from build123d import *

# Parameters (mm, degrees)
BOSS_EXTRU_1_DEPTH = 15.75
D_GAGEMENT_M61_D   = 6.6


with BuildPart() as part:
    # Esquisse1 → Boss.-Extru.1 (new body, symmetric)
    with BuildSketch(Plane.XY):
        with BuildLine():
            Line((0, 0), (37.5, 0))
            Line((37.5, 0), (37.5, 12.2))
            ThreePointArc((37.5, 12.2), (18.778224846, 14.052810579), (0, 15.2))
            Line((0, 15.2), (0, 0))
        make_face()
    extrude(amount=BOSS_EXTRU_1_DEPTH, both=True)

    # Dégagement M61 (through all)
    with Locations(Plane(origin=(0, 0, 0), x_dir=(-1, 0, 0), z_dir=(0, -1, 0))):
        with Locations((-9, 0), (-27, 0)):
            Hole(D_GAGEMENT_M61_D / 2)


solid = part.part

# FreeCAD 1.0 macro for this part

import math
import FreeCAD as App
import Part
import Sketcher

V = App.Vector
Q = App.Units.Quantity

doc = App.newDocument("Part")
body = doc.addObject("PartDesign::Body", "Body")

sketch1 = body.newObject("Sketcher::SketchObject", "Sketch")
sketch1.AttachmentSupport = (doc.getObject("XY_Plane"), [""])
sketch1.MapMode = "FlatFace"
sketch1.addGeometry([
    Part.LineSegment(V(0, 0, 0), V(37.5, 0, 0)),
    Part.LineSegment(V(37.5, 0, 0), V(37.5, 12.2, 0)),
    Part.ArcOfCircle(Part.Circle(V(-21.094386, -484.354828, 0), V(0, 0, 1), 500), math.radians(83.270114), math.radians(87.582044)),
    Part.LineSegment(V(0, 15.2, 0), V(0, 0, 0)),
], False)
sketch1.addConstraint([
    Sketcher.Constraint("Coincident", 0, 2, 1, 1),
    Sketcher.Constraint("Coincident", 1, 2, 2, 1),
    Sketcher.Constraint("Coincident", 2, 2, 3, 1),
    Sketcher.Constraint("Coincident", 3, 2, 0, 1),
    Sketcher.Constraint("Horizontal", 0),
    Sketcher.Constraint("Vertical", 1),
    Sketcher.Constraint("Vertical", 3),
    Sketcher.Constraint("Coincident", 3, 2, -1, 1),
    Sketcher.Constraint("Radius", 2, Q("500 mm")),
    Sketcher.Constraint("DistanceX", 0, 1, 0, 2, Q("37.5 mm")),
    Sketcher.Constraint("DistanceY", 1, 1, 1, 2, Q("12.2 mm")),
    Sketcher.Constraint("DistanceY", 3, 2, 3, 1, Q("15.2 mm")),
])
pad1 = body.newObject("PartDesign::Pad", "Pad")
pad1.Profile = sketch1
pad1.Length = 31.5
pad1.Midplane = True

sketch2 = body.newObject("Sketcher::SketchObject", "Sketch001")
sketch2.AttachmentSupport = (doc.getObject("XZ_Plane"), [""])
sketch2.MapMode = "FlatFace"
sketch2.addGeometry([
    Part.Circle(V(9, 0, 0), V(0, 0, 1), 3.3),
    Part.Circle(V(27, 0, 0), V(0, 0, 1), 3.3),
], False)
sketch2.addConstraint([
    Sketcher.Constraint("Equal", 0, 1),
    Sketcher.Constraint("PointOnObject", 0, 3, -1),
    Sketcher.Constraint("PointOnObject", 1, 3, -1),
    Sketcher.Constraint("Diameter", 0, Q("6.6 mm")),
    Sketcher.Constraint("DistanceX", -1, 1, 0, 3, Q("9 mm")),
    Sketcher.Constraint("DistanceX", -1, 1, 1, 3, Q("27 mm")),
])
doc.recompute()
hole = body.newObject("PartDesign::Hole", "Hole")
hole.Profile = sketch2
hole.ThreadType = "None"
hole.Diameter = 6.6
hole.DepthType = "ThroughAll"

doc.recompute()
